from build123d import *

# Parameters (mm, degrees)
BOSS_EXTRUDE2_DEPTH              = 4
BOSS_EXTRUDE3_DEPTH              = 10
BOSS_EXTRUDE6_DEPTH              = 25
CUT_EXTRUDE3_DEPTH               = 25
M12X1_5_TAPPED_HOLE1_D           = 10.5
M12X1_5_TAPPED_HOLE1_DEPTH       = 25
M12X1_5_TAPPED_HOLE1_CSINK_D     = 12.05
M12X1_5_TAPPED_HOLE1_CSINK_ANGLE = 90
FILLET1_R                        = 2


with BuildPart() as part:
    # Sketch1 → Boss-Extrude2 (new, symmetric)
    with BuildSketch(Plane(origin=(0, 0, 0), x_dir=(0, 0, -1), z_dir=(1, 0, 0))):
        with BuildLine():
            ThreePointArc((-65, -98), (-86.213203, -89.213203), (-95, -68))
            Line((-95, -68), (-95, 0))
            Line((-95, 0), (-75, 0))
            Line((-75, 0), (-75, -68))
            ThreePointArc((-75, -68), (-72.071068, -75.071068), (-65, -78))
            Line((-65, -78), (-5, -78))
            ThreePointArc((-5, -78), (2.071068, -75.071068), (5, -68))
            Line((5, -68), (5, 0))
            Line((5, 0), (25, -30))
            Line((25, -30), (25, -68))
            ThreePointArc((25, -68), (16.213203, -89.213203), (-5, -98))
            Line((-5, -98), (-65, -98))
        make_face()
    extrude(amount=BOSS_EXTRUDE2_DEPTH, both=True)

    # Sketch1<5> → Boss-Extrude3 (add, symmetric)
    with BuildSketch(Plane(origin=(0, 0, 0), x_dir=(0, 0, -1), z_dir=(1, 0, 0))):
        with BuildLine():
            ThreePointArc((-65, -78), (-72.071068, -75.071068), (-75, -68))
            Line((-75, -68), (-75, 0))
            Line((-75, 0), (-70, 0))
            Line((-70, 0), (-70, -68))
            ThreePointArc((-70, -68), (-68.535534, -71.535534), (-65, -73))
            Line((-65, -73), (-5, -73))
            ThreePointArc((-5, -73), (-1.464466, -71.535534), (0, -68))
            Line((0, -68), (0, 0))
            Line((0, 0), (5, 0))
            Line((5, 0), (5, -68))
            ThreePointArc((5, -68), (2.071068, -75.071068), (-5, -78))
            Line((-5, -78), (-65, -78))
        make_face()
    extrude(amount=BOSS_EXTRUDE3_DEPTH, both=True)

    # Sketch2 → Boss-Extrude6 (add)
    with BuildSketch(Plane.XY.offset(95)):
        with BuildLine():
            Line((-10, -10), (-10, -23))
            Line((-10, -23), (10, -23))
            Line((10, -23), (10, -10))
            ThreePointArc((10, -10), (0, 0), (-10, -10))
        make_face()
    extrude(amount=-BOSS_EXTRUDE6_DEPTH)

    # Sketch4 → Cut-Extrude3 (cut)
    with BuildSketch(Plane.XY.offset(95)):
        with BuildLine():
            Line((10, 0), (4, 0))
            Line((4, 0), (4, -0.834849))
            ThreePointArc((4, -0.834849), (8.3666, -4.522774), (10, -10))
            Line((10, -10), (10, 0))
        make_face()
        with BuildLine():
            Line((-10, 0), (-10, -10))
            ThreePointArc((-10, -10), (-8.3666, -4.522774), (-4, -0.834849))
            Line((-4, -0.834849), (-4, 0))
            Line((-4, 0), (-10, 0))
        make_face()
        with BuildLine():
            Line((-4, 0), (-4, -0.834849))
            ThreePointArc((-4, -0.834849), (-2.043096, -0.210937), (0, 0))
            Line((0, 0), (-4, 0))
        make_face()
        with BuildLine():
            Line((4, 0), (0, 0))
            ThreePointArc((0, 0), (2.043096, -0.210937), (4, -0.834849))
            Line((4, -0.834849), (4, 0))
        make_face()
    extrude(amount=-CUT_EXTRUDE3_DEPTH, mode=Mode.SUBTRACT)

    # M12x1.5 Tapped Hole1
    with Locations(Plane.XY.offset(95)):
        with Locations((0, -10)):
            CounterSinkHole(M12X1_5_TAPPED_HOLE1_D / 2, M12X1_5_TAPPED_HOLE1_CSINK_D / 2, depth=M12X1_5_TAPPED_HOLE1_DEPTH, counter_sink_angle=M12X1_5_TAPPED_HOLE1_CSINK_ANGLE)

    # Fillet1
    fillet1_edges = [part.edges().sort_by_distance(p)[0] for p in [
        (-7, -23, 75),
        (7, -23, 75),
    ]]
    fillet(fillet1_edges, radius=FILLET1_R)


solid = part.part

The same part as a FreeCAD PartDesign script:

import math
import FreeCAD as App
import Part
import Sketcher
from FreeCAD import Vector
Q = App.Units.Quantity


def edges_at(feature, points):
    """Names of the edges that pass closest to the given points."""
    edges = feature.Shape.Edges
    near = lambda p: min(range(len(edges)), key=lambda i: edges[i].distToShape(Part.Vertex(*p))[0])
    return sorted({f"Edge{near(p) + 1}" for p in points})

doc = App.newDocument("Part")
params = doc.addObject("Spreadsheet::Sheet", "Params")
for row, (alias, value) in enumerate([
    ("sketch1_radius", "30.000001 mm"),
    ("sketch1_radius2", "9.999999 mm"),
    ("sketch1_width", "38 mm"),
    ("sketch1_width2", "68 mm"),
    ("sketch1_height", "60 mm"),
    ("pad1_length", "8 mm"),
    ("sketch2_radius", "9.999999 mm"),
    ("sketch2_radius2", "5 mm"),
    ("sketch2_width", "68 mm"),
    ("sketch2_height", "60 mm"),
    ("pad2_length", "20 mm"),
    ("sketch3_radius", "10 mm"),
    ("sketch3_height", "13 mm"),
    ("pad3_length", "25 mm"),
    ("sketch4_radius", "10.000002 mm"),
    ("pocket1_length", "25 mm"),
    ("sketch5_diameter", "10.5 mm"),
    ("hole_diameter", "10.5 mm"),
    ("hole_depth", "25 mm"),
    ("hole_csink_diameter", "12.05 mm"),
    ("fillet_radius", "2 mm"),
], start=1):
    params.set(f"A{row}", alias)
    params.set(f"B{row}", "=" + value)
    params.setAlias(f"B{row}", alias)

body = doc.addObject("PartDesign::Body", "Body")

# Sketch on YZ plane
sketch1 = doc.addObject("Sketcher::SketchObject", "Sketch")
body.addObject(sketch1)
sketch1.AttachmentSupport = (doc.YZ_Plane, [""])
sketch1.MapMode = "FlatFace"
sketch1.addGeometry([
    Part.ArcOfCircle(Part.Circle(Vector(-68, 65, 0), Vector(0, 0, 1), 30), math.radians(90), math.radians(180)),  # 0
    Part.LineSegment(Vector(-98, 65, 0), Vector(-98, 5, 0)),  # 1
    Part.ArcOfCircle(Part.Circle(Vector(-68, 5, 0), Vector(0, 0, 1), 30), math.radians(-180), math.radians(-90)),  # 2
    Part.LineSegment(Vector(-68, -25, 0), Vector(-30, -25, 0)),  # 3
    Part.LineSegment(Vector(-30, -25, 0), Vector(0, -5, 0)),  # 4
    Part.LineSegment(Vector(0, -5, 0), Vector(-68, -5, 0)),  # 5
    Part.ArcOfCircle(Part.Circle(Vector(-68, 5, 0), Vector(0, 0, 1), 10), math.radians(180), math.radians(270)),  # 6
    Part.LineSegment(Vector(-78, 5, 0), Vector(-78, 65, 0)),  # 7
    Part.ArcOfCircle(Part.Circle(Vector(-68, 65, 0), Vector(0, 0, 1), 10), math.radians(90), math.radians(180)),  # 8
    Part.LineSegment(Vector(-68, 75, 0), Vector(0, 75, 0)),  # 9
    Part.LineSegment(Vector(0, 75, 0), Vector(0, 95, 0)),  # 10
    Part.LineSegment(Vector(0, 95, 0), Vector(-68, 95, 0)),  # 11
], False)
sketch1.addConstraint([
    Sketcher.Constraint("Tangent", 0, 2, 1, 1),
    Sketcher.Constraint("Tangent", 1, 2, 2, 1),
    Sketcher.Constraint("Tangent", 2, 2, 3, 1),
    Sketcher.Constraint("Coincident", 3, 2, 4, 1),
    Sketcher.Constraint("Coincident", 4, 2, 5, 1),
    Sketcher.Constraint("Tangent", 5, 2, 6, 2),
    Sketcher.Constraint("Tangent", 6, 1, 7, 1),
    Sketcher.Constraint("Tangent", 7, 2, 8, 2),
    Sketcher.Constraint("Tangent", 8, 1, 9, 1),
    Sketcher.Constraint("Coincident", 9, 2, 10, 1),
    Sketcher.Constraint("Coincident", 10, 2, 11, 1),
    Sketcher.Constraint("Tangent", 11, 2, 0, 1),
    Sketcher.Constraint("Vertical", 1),
    Sketcher.Constraint("Horizontal", 3),
    Sketcher.Constraint("Horizontal", 5),
    Sketcher.Constraint("Vertical", 7),
    Sketcher.Constraint("Horizontal", 9),
    Sketcher.Constraint("Vertical", 10),
    Sketcher.Constraint("Horizontal", 11),
    Sketcher.Constraint("Coincident", 6, 3, 2, 3),
    Sketcher.Constraint("Coincident", 8, 3, 0, 3),
    Sketcher.Constraint("Equal", 0, 2),
    Sketcher.Constraint("PointOnObject", 4, 2, -2),
    Sketcher.Constraint("PointOnObject", 9, 2, -2),
    Sketcher.Constraint("Radius", 0, Q("30.000001 mm")),
    Sketcher.Constraint("Radius", 6, Q("9.999999 mm")),
    Sketcher.Constraint("DistanceX", 3, 1, 3, 2, Q("38 mm")),
    Sketcher.Constraint("DistanceX", 5, 2, 5, 1, Q("68 mm")),
    Sketcher.Constraint("DistanceY", 1, 2, 1, 1, Q("60 mm")),
    Sketcher.Constraint("DistanceY", -1, 1, 0, 3, Q("64.999999 mm")),
])
sketch1.setExpression("Constraints[24]", "Params.sketch1_radius")
sketch1.setExpression("Constraints[25]", "Params.sketch1_radius2")
sketch1.setExpression("Constraints[26]", "Params.sketch1_width")
sketch1.setExpression("Constraints[27]", "Params.sketch1_width2")
sketch1.setExpression("Constraints[28]", "Params.sketch1_height")
pad1 = doc.addObject("PartDesign::Pad", "Pad")
body.addObject(pad1)
pad1.Profile = sketch1
pad1.setExpression("Length", "Params.pad1_length")
pad1.Midplane = True

# Sketch on YZ plane
sketch2 = doc.addObject("Sketcher::SketchObject", "Sketch001")
body.addObject(sketch2)
sketch2.AttachmentSupport = (doc.YZ_Plane, [""])
sketch2.MapMode = "FlatFace"
sketch2.addGeometry([
    Part.ArcOfCircle(Part.Circle(Vector(-68, 65, 0), Vector(0, 0, 1), 10), math.radians(90), math.radians(180)),  # 0
    Part.LineSegment(Vector(-78, 65, 0), Vector(-78, 5, 0)),  # 1
    Part.ArcOfCircle(Part.Circle(Vector(-68, 5, 0), Vector(0, 0, 1), 10), math.radians(180), math.radians(270)),  # 2
    Part.LineSegment(Vector(-68, -5, 0), Vector(0, -5, 0)),  # 3
    Part.LineSegment(Vector(0, -5, 0), Vector(0, 0, 0)),  # 4
    Part.LineSegment(Vector(0, 0, 0), Vector(-68, 0, 0)),  # 5
    Part.ArcOfCircle(Part.Circle(Vector(-68, 5, 0), Vector(0, 0, 1), 5), math.radians(180), math.radians(270)),  # 6
    Part.LineSegment(Vector(-73, 5, 0), Vector(-73, 65, 0)),  # 7
    Part.ArcOfCircle(Part.Circle(Vector(-68, 65, 0), Vector(0, 0, 1), 5), math.radians(90), math.radians(180)),  # 8
    Part.LineSegment(Vector(-68, 70, 0), Vector(0, 70, 0)),  # 9
    Part.LineSegment(Vector(0, 70, 0), Vector(0, 75, 0)),  # 10
    Part.LineSegment(Vector(0, 75, 0), Vector(-68, 75, 0)),  # 11
], False)
sketch2.addConstraint([
    Sketcher.Constraint("Tangent", 0, 2, 1, 1),
    Sketcher.Constraint("Tangent", 1, 2, 2, 1),
    Sketcher.Constraint("Tangent", 2, 2, 3, 1),
    Sketcher.Constraint("Coincident", 3, 2, 4, 1),
    Sketcher.Constraint("Coincident", 4, 2, 5, 1),
    Sketcher.Constraint("Tangent", 5, 2, 6, 2),
    Sketcher.Constraint("Tangent", 6, 1, 7, 1),
    Sketcher.Constraint("Tangent", 7, 2, 8, 2),
    Sketcher.Constraint("Tangent", 8, 1, 9, 1),
    Sketcher.Constraint("Coincident", 9, 2, 10, 1),
    Sketcher.Constraint("Coincident", 10, 2, 11, 1),
    Sketcher.Constraint("Tangent", 11, 2, 0, 1),
    Sketcher.Constraint("Vertical", 1),
    Sketcher.Constraint("Horizontal", 3),
    Sketcher.Constraint("Vertical", 4),
    Sketcher.Constraint("Horizontal", 5),
    Sketcher.Constraint("Vertical", 7),
    Sketcher.Constraint("Horizontal", 9),
    Sketcher.Constraint("Vertical", 10),
    Sketcher.Constraint("Horizontal", 11),
    Sketcher.Constraint("Coincident", 4, 2, -1, 1),
    Sketcher.Constraint("Coincident", 6, 3, 2, 3),
    Sketcher.Constraint("Coincident", 8, 3, 0, 3),
    Sketcher.Constraint("Equal", 0, 2),
    Sketcher.Constraint("PointOnObject", 9, 2, -2),
    Sketcher.Constraint("Radius", 0, Q("9.999999 mm")),
    Sketcher.Constraint("Radius", 6, Q("5 mm")),
    Sketcher.Constraint("DistanceX", 3, 1, 3, 2, Q("68 mm")),
    Sketcher.Constraint("DistanceY", 1, 2, 1, 1, Q("60 mm")),
])
sketch2.setExpression("Constraints[25]", "Params.sketch2_radius")
sketch2.setExpression("Constraints[26]", "Params.sketch2_radius2")
sketch2.setExpression("Constraints[27]", "Params.sketch2_width")
sketch2.setExpression("Constraints[28]", "Params.sketch2_height")
pad2 = doc.addObject("PartDesign::Pad", "Pad001")
body.addObject(pad2)
pad2.Profile = sketch2
pad2.setExpression("Length", "Params.pad2_length")
pad2.Midplane = True

# Sketch on XY plane
sketch3 = doc.addObject("Sketcher::SketchObject", "Sketch002")
body.addObject(sketch3)
sketch3.AttachmentSupport = (doc.XY_Plane, [""])
sketch3.MapMode = "FlatFace"
sketch3.AttachmentOffset = App.Placement(Vector(0, 0, 95), App.Rotation())
sketch3.addGeometry([
    Part.LineSegment(Vector(-10, -10, 0), Vector(-10, -23, 0)),
    Part.LineSegment(Vector(-10, -23, 0), Vector(10, -23, 0)),
    Part.LineSegment(Vector(10, -23, 0), Vector(10, -10, 0)),
    Part.ArcOfCircle(Part.Circle(Vector(0, -10, 0), Vector(0, 0, 1), 10), math.radians(0), math.radians(180)),
], False)
sketch3.addConstraint([
    Sketcher.Constraint("Coincident", 0, 2, 1, 1),
    Sketcher.Constraint("Coincident", 1, 2, 2, 1),
    Sketcher.Constraint("Tangent", 2, 2, 3, 1),
    Sketcher.Constraint("Tangent", 3, 2, 0, 1),
    Sketcher.Constraint("Vertical", 0),
    Sketcher.Constraint("Horizontal", 1),
    Sketcher.Constraint("Vertical", 2),
    Sketcher.Constraint("PointOnObject", 3, 3, -2),
    Sketcher.Constraint("Radius", 3, Q("10 mm")),
    Sketcher.Constraint("DistanceY", 0, 2, 0, 1, Q("13 mm")),
    Sketcher.Constraint("DistanceY", 3, 3, -1, 1, Q("10 mm")),
])
sketch3.setExpression("Constraints[8]", "Params.sketch3_radius")
sketch3.setExpression("Constraints[9]", "Params.sketch3_height")
pad3 = doc.addObject("PartDesign::Pad", "Pad002")
body.addObject(pad3)
pad3.Profile = sketch3
pad3.setExpression("Length", "Params.pad3_length")
pad3.Reversed = True

# Sketch on XY plane
sketch4 = doc.addObject("Sketcher::SketchObject", "Sketch003")
body.addObject(sketch4)
sketch4.AttachmentSupport = (doc.XY_Plane, [""])
sketch4.MapMode = "FlatFace"
sketch4.AttachmentOffset = App.Placement(Vector(0, 0, 95), App.Rotation())
sketch4.addGeometry([
    Part.LineSegment(Vector(10, 0, 0), Vector(0, 0, 0)),  # 0
    Part.ArcOfCircle(Part.Circle(Vector(0, -10, 0), Vector(0, 0, 1), 10), math.radians(66), math.radians(90)),  # 1
    Part.ArcOfCircle(Part.Circle(Vector(0, -10, 0), Vector(0, 0, 1), 10), math.radians(0), math.radians(66)),  # 2
    Part.LineSegment(Vector(10, -10, 0), Vector(10, 0, 0)),  # 3
    Part.LineSegment(Vector(-10, 0, 0), Vector(-10, -10, 0)),  # 4
    Part.ArcOfCircle(Part.Circle(Vector(0, -10, 0), Vector(0, 0, 1), 10), math.radians(114), math.radians(180)),  # 5
    Part.ArcOfCircle(Part.Circle(Vector(0, -10, 0), Vector(0, 0, 1), 10), math.radians(90), math.radians(114)),  # 6
    Part.LineSegment(Vector(0, 0, 0), Vector(-10, 0, 0)),  # 7
], False)
sketch4.addConstraint([
    Sketcher.Constraint("Tangent", 0, 2, 1, 2),
    Sketcher.Constraint("Tangent", 1, 1, 2, 2),
    Sketcher.Constraint("Tangent", 2, 1, 3, 1),
    Sketcher.Constraint("Coincident", 3, 2, 0, 1),
    Sketcher.Constraint("Tangent", 4, 2, 5, 2),
    Sketcher.Constraint("Tangent", 5, 1, 6, 2),
    Sketcher.Constraint("Tangent", 6, 1, 7, 1),
    Sketcher.Constraint("Coincident", 7, 2, 4, 1),
    Sketcher.Constraint("Horizontal", 0),
    Sketcher.Constraint("Vertical", 3),
    Sketcher.Constraint("Vertical", 4),
    Sketcher.Constraint("Horizontal", 7),
    Sketcher.Constraint("Coincident", 0, 2, -1, 1),
    Sketcher.Constraint("Coincident", 6, 1, -1, 1),
    Sketcher.Constraint("Coincident", 5, 3, 1, 3),
    Sketcher.Constraint("Equal", 2, 5),
    Sketcher.Constraint("Horizontal", 1, 1, 5, 1),
    Sketcher.Constraint("Radius", 1, Q("10.000002 mm")),
    Sketcher.Constraint("DistanceX", -1, 1, 1, 1, Q("4 mm")),
])
sketch4.setExpression("Constraints[17]", "Params.sketch4_radius")
pocket1 = doc.addObject("PartDesign::Pocket", "Pocket")
body.addObject(pocket1)
pocket1.Profile = sketch4
pocket1.setExpression("Length", "Params.pocket1_length")

# Sketch on XY plane
sketch5 = doc.addObject("Sketcher::SketchObject", "Sketch004")
body.addObject(sketch5)
sketch5.AttachmentSupport = (doc.XY_Plane, [""])
sketch5.MapMode = "FlatFace"
sketch5.AttachmentOffset = App.Placement(Vector(0, 0, 95), App.Rotation())
sketch5.addGeometry(Part.Circle(Vector(0, -10, 0), Vector(0, 0, 1), 5), False)
sketch5.addConstraint([
    Sketcher.Constraint("PointOnObject", 0, 3, -2),
    Sketcher.Constraint("Diameter", 0, Q("10.5 mm")),
    Sketcher.Constraint("DistanceY", 0, 3, -1, 1, Q("10 mm")),
])
sketch5.setExpression("Constraints[1]", "Params.sketch5_diameter")
doc.recompute()
hole = doc.addObject("PartDesign::Hole", "Hole")
body.addObject(hole)
hole.Profile = sketch5
hole.ThreadType = "None"
hole.setExpression("Diameter", "Params.hole_diameter")
hole.DepthType = "Dimension"
hole.setExpression("Depth", "Params.hole_depth")
hole.DrillPoint = "Flat"
hole.HoleCutType = "Countersink"
hole.setExpression("HoleCutDiameter", "Params.hole_csink_diameter")
hole.HoleCutCountersinkAngle = 90
doc.recompute()

fillet = doc.addObject("PartDesign::Fillet", "Fillet")
body.addObject(fillet)
fillet.Base = (hole, edges_at(hole, [(-7, -23, 75), (7, -23, 75)]))
fillet.setExpression("Radius", "Params.fillet_radius")

doc.recompute()
